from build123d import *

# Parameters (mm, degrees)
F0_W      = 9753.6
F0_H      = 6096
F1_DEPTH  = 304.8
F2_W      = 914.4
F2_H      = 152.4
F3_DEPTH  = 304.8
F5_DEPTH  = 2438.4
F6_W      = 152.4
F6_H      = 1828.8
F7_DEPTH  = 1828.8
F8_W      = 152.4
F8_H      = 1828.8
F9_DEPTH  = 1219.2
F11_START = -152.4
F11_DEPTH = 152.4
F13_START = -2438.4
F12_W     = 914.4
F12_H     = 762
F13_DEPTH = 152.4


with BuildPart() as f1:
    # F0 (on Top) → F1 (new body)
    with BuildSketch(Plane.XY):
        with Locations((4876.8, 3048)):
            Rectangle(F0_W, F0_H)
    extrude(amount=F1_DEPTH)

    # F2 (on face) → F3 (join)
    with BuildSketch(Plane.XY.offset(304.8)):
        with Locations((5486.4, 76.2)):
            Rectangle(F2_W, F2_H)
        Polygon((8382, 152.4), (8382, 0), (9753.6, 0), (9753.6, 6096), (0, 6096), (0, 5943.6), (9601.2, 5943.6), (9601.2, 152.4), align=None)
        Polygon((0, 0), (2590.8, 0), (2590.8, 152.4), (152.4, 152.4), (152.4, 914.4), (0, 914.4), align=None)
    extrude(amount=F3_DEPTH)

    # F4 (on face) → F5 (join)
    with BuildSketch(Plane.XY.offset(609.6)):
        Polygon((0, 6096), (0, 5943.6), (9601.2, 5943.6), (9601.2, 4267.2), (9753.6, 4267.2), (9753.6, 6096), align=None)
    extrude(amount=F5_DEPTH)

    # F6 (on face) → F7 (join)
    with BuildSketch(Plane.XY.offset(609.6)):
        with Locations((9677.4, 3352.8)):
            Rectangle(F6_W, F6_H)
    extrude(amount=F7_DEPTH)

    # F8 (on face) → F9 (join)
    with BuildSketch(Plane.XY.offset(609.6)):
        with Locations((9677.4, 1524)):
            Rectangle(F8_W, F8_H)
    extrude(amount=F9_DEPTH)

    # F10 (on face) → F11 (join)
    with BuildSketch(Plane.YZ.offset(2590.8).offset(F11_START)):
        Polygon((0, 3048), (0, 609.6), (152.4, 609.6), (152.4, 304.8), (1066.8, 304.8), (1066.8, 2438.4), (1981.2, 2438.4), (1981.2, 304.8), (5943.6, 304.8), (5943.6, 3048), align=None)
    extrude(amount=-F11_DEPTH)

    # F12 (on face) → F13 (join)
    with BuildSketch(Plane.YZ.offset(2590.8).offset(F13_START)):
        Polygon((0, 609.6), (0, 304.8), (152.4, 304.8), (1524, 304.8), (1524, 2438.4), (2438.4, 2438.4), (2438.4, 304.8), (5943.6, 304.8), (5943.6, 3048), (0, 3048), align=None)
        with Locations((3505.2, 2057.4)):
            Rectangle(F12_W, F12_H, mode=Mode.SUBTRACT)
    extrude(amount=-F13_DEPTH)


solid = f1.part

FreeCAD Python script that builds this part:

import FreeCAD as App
import Part
import Sketcher

V = App.Vector
Q = App.Units.Quantity


def add_polygon(sketch, points):
    """Adds a closed chain of lines whose ends are joined by coincident constraints."""
    first, n = sketch.GeometryCount, len(points)
    for a, b in zip(points, points[1:] + points[:1]):
        sketch.addGeometry(Part.LineSegment(App.Vector(*a, 0), App.Vector(*b, 0)), False)
    for i in range(n):
        sketch.addConstraint(Sketcher.Constraint("Coincident", first + i, 2, first + (i + 1) % n, 1))

doc = App.newDocument("Part")
body = doc.addObject("PartDesign::Body", "Body")

sketch1 = body.newObject("Sketcher::SketchObject", "Sketch")
sketch1.AttachmentSupport = (doc.getObject("XY_Plane"), [""])
sketch1.MapMode = "FlatFace"
add_polygon(sketch1, [(0, 6096), (0, 0), (9754, 0), (9754, 6096)])
sketch1.addConstraint([
    Sketcher.Constraint("Vertical", 0),
    Sketcher.Constraint("Horizontal", 1),
    Sketcher.Constraint("Vertical", 2),
    Sketcher.Constraint("Horizontal", 3),
    Sketcher.Constraint("Coincident", 0, 2, -1, 1),
    Sketcher.Constraint("DistanceX", 1, 1, 1, 2, Q("384 in")),
    Sketcher.Constraint("DistanceY", 0, 2, 0, 1, Q("240 in")),
])
pad1 = body.newObject("PartDesign::Pad", "Pad")
pad1.Profile = sketch1
pad1.Length = Q("12 in")

sketch2 = body.newObject("Sketcher::SketchObject", "Sketch001")
sketch2.AttachmentSupport = (doc.getObject("XY_Plane"), [""])
sketch2.MapMode = "FlatFace"
sketch2.AttachmentOffset = App.Placement(V(0, 0, 12 * 25.4), App.Rotation())
add_polygon(sketch2, [(5029, 152), (5029, 0), (5944, 0), (5944, 152)])
add_polygon(sketch2, [(8382, 152), (8382, 0), (9754, 0), (9754, 6096), (0, 6096), (0, 5944), (9601, 5944), (9601, 152)])
add_polygon(sketch2, [(0, 0), (2591, 0), (2591, 152), (152, 152), (152, 914), (0, 914)])
sketch2.addConstraint([
    Sketcher.Constraint("Vertical", 0),
    Sketcher.Constraint("Horizontal", 1),
    Sketcher.Constraint("Vertical", 2),
    Sketcher.Constraint("Horizontal", 3),
    Sketcher.Constraint("Vertical", 4),
    Sketcher.Constraint("Horizontal", 5),
    Sketcher.Constraint("Vertical", 6),
    Sketcher.Constraint("Horizontal", 7),
    Sketcher.Constraint("Vertical", 8),
    Sketcher.Constraint("Horizontal", 9),
    Sketcher.Constraint("Vertical", 10),
    Sketcher.Constraint("Horizontal", 11),
    Sketcher.Constraint("Horizontal", 12),
    Sketcher.Constraint("Vertical", 13),
    Sketcher.Constraint("Horizontal", 14),
    Sketcher.Constraint("Vertical", 15),
    Sketcher.Constraint("Horizontal", 16),
    Sketcher.Constraint("Vertical", 17),
    Sketcher.Constraint("Coincident", 17, 2, -1, 1),
    Sketcher.Constraint("PointOnObject", 0, 2, -1),
    Sketcher.Constraint("PointOnObject", 4, 2, -1),
    Sketcher.Constraint("PointOnObject", 7, 2, -2),
    Sketcher.Constraint("Horizontal", 3, 2, 10, 2),
    Sketcher.Constraint("Horizontal", 11, 2, 13, 2),
    Sketcher.Constraint("Equal", 16, 0),
    Sketcher.Constraint("Equal", 4, 8),
    Sketcher.Constraint("Equal", 3, 17),
    Sketcher.Constraint("DistanceX", 1, 1, 1, 2, Q("36 in")),
    Sketcher.Constraint("DistanceX", 5, 1, 5, 2, Q("54 in")),
    Sketcher.Constraint("DistanceX", 7, 2, 7, 1, Q("384 in")),
    Sketcher.Constraint("DistanceX", 9, 1, 9, 2, Q("378 in")),
    Sketcher.Constraint("DistanceX", 12, 1, 12, 2, Q("102 in")),
    Sketcher.Constraint("DistanceX", 14, 2, 14, 1, Q("96 in")),
    Sketcher.Constraint("DistanceY", 6, 1, 6, 2, Q("240 in")),
    Sketcher.Constraint("DistanceX", -1, 1, 0, 2, Q("198 in")),
])
pad2 = body.newObject("PartDesign::Pad", "Pad001")
pad2.Profile = sketch2
pad2.Length = Q("12 in")

sketch3 = body.newObject("Sketcher::SketchObject", "Sketch002")
sketch3.AttachmentSupport = (doc.getObject("XY_Plane"), [""])
sketch3.MapMode = "FlatFace"
sketch3.AttachmentOffset = App.Placement(V(0, 0, 24 * 25.4), App.Rotation())
add_polygon(sketch3, [(0, 6096), (0, 5944), (9601, 5944), (9601, 4267), (9754, 4267), (9754, 6096)])
sketch3.addConstraint([
    Sketcher.Constraint("Vertical", 0),
    Sketcher.Constraint("Horizontal", 1),
    Sketcher.Constraint("Vertical", 2),
    Sketcher.Constraint("Horizontal", 3),
    Sketcher.Constraint("Vertical", 4),
    Sketcher.Constraint("Horizontal", 5),
    Sketcher.Constraint("PointOnObject", 0, 2, -2),
    Sketcher.Constraint("Equal", 3, 0),
    Sketcher.Constraint("DistanceX", 1, 1, 1, 2, Q("378 in")),
    Sketcher.Constraint("DistanceX", 3, 1, 3, 2, Q("6 in")),
    Sketcher.Constraint("DistanceY", 2, 2, 2, 1, Q("66 in")),
    Sketcher.Constraint("DistanceY", -1, 1, 0, 2, Q("234 in")),
])
pad3 = body.newObject("PartDesign::Pad", "Pad002")
pad3.Profile = sketch3
pad3.Length = Q("96 in")

sketch4 = body.newObject("Sketcher::SketchObject", "Sketch003")
sketch4.AttachmentSupport = (doc.getObject("XY_Plane"), [""])
sketch4.MapMode = "FlatFace"
sketch4.AttachmentOffset = App.Placement(V(0, 0, 24 * 25.4), App.Rotation())
add_polygon(sketch4, [(9601, 4267), (9601, 2438), (9754, 2438), (9754, 4267)])
sketch4.addConstraint([
    Sketcher.Constraint("Vertical", 0),
    Sketcher.Constraint("Horizontal", 1),
    Sketcher.Constraint("Vertical", 2),
    Sketcher.Constraint("Horizontal", 3),
    Sketcher.Constraint("DistanceX", 1, 1, 1, 2, Q("6 in")),
    Sketcher.Constraint("DistanceY", 0, 2, 0, 1, Q("72 in")),
    Sketcher.Constraint("DistanceX", -1, 1, 0, 2, Q("378 in")),
    Sketcher.Constraint("DistanceY", -1, 1, 0, 2, Q("96 in")),
])
pad4 = body.newObject("PartDesign::Pad", "Pad003")
pad4.Profile = sketch4
pad4.Length = Q("72 in")

sketch5 = body.newObject("Sketcher::SketchObject", "Sketch004")
sketch5.AttachmentSupport = (doc.getObject("XY_Plane"), [""])
sketch5.MapMode = "FlatFace"
sketch5.AttachmentOffset = App.Placement(V(0, 0, 24 * 25.4), App.Rotation())
add_polygon(sketch5, [(9601, 2438), (9601, 610), (9754, 610), (9754, 2438)])
sketch5.addConstraint([
    Sketcher.Constraint("Vertical", 0),
    Sketcher.Constraint("Horizontal", 1),
    Sketcher.Constraint("Vertical", 2),
    Sketcher.Constraint("Horizontal", 3),
    Sketcher.Constraint("DistanceX", 1, 1, 1, 2, Q("6 in")),
    Sketcher.Constraint("DistanceY", 0, 2, 0, 1, Q("72 in")),
    Sketcher.Constraint("DistanceX", -1, 1, 0, 2, Q("378 in")),
    Sketcher.Constraint("DistanceY", -1, 1, 0, 2, Q("24 in")),
])
pad5 = body.newObject("PartDesign::Pad", "Pad004")
pad5.Profile = sketch5
pad5.Length = Q("48 in")

sketch6 = body.newObject("Sketcher::SketchObject", "Sketch005")
sketch6.AttachmentSupport = (doc.getObject("YZ_Plane"), [""])
sketch6.MapMode = "FlatFace"
sketch6.AttachmentOffset = App.Placement(V(0, 0, 96 * 25.4), App.Rotation())
add_polygon(sketch6, [(0, 3048), (0, 610), (152, 610), (152, 305), (1067, 305), (1067, 2438), (1981, 2438), (1981, 305), (5944, 305), (5944, 3048)])
sketch6.addConstraint([
    Sketcher.Constraint("Vertical", 0),
    Sketcher.Constraint("Horizontal", 1),
    Sketcher.Constraint("Vertical", 2),
    Sketcher.Constraint("Horizontal", 3),
    Sketcher.Constraint("Vertical", 4),
    Sketcher.Constraint("Horizontal", 5),
    Sketcher.Constraint("Vertical", 6),
    Sketcher.Constraint("Horizontal", 7),
    Sketcher.Constraint("Vertical", 8),
    Sketcher.Constraint("Horizontal", 9),
    Sketcher.Constraint("PointOnObject", 0, 2, -2),
    Sketcher.Constraint("Horizontal", 3, 2, 6, 2),
    Sketcher.Constraint("Equal", 3, 5),
    Sketcher.Constraint("DistanceX", 1, 1, 1, 2, Q("6 in")),
    Sketcher.Constraint("DistanceX", 3, 1, 3, 2, Q("36 in")),
    Sketcher.Constraint("DistanceX", 7, 1, 7, 2, Q("156 in")),
    Sketcher.Constraint("DistanceY", 0, 2, 0, 1, Q("96 in")),
    Sketcher.Constraint("DistanceY", 2, 2, 2, 1, Q("12 in")),
    Sketcher.Constraint("DistanceY", 4, 1, 4, 2, Q("84 in")),
    Sketcher.Constraint("DistanceY", -1, 1, 0, 2, Q("24 in")),
])
pad6 = body.newObject("PartDesign::Pad", "Pad005")
pad6.Profile = sketch6
pad6.Length = Q("6 in")
pad6.Reversed = True

sketch7 = body.newObject("Sketcher::SketchObject", "Sketch006")
sketch7.AttachmentSupport = (doc.getObject("YZ_Plane"), [""])
sketch7.MapMode = "FlatFace"
sketch7.AttachmentOffset = App.Placement(V(0, 0, 6 * 25.4), App.Rotation())
add_polygon(sketch7, [(0, 305), (1524, 305), (1524, 2438), (2438, 2438), (2438, 305), (5944, 305), (5944, 3048), (0, 3048)])
add_polygon(sketch7, [(3962, 1676), (3048, 1676), (3048, 2438), (3962, 2438)])
sketch7.addConstraint([
    Sketcher.Constraint("Horizontal", 0),
    Sketcher.Constraint("Vertical", 1),
    Sketcher.Constraint("Horizontal", 2),
    Sketcher.Constraint("Vertical", 3),
    Sketcher.Constraint("Horizontal", 4),
    Sketcher.Constraint("Vertical", 5),
    Sketcher.Constraint("Horizontal", 6),
    Sketcher.Constraint("Vertical", 7),
    Sketcher.Constraint("Horizontal", 8),
    Sketcher.Constraint("Vertical", 9),
    Sketcher.Constraint("Horizontal", 10),
    Sketcher.Constraint("Vertical", 11),
    Sketcher.Constraint("PointOnObject", 6, 2, -2),
    Sketcher.Constraint("Horizontal", 0, 2, 3, 2),
    Sketcher.Constraint("Horizontal", 2, 2, 9, 2),
    Sketcher.Constraint("Equal", 2, 8),
    Sketcher.Constraint("DistanceX", 0, 1, 0, 2, Q("60 in")),
    Sketcher.Constraint("DistanceX", 2, 1, 2, 2, Q("36 in")),
    Sketcher.Constraint("DistanceX", 4, 1, 4, 2, Q("138 in")),
    Sketcher.Constraint("DistanceY", 1, 1, 1, 2, Q("84 in")),
    Sketcher.Constraint("DistanceY", 5, 1, 5, 2, Q("108 in")),
    Sketcher.Constraint("DistanceY", 9, 1, 9, 2, Q("30 in")),
    Sketcher.Constraint("DistanceY", -1, 1, 0, 2, Q("12 in")),
    Sketcher.Constraint("DistanceX", -1, 1, 8, 2, Q("120 in")),
])
pad7 = body.newObject("PartDesign::Pad", "Pad006")
pad7.Profile = sketch7
pad7.Length = Q("6 in")
pad7.Reversed = True

doc.recompute()
